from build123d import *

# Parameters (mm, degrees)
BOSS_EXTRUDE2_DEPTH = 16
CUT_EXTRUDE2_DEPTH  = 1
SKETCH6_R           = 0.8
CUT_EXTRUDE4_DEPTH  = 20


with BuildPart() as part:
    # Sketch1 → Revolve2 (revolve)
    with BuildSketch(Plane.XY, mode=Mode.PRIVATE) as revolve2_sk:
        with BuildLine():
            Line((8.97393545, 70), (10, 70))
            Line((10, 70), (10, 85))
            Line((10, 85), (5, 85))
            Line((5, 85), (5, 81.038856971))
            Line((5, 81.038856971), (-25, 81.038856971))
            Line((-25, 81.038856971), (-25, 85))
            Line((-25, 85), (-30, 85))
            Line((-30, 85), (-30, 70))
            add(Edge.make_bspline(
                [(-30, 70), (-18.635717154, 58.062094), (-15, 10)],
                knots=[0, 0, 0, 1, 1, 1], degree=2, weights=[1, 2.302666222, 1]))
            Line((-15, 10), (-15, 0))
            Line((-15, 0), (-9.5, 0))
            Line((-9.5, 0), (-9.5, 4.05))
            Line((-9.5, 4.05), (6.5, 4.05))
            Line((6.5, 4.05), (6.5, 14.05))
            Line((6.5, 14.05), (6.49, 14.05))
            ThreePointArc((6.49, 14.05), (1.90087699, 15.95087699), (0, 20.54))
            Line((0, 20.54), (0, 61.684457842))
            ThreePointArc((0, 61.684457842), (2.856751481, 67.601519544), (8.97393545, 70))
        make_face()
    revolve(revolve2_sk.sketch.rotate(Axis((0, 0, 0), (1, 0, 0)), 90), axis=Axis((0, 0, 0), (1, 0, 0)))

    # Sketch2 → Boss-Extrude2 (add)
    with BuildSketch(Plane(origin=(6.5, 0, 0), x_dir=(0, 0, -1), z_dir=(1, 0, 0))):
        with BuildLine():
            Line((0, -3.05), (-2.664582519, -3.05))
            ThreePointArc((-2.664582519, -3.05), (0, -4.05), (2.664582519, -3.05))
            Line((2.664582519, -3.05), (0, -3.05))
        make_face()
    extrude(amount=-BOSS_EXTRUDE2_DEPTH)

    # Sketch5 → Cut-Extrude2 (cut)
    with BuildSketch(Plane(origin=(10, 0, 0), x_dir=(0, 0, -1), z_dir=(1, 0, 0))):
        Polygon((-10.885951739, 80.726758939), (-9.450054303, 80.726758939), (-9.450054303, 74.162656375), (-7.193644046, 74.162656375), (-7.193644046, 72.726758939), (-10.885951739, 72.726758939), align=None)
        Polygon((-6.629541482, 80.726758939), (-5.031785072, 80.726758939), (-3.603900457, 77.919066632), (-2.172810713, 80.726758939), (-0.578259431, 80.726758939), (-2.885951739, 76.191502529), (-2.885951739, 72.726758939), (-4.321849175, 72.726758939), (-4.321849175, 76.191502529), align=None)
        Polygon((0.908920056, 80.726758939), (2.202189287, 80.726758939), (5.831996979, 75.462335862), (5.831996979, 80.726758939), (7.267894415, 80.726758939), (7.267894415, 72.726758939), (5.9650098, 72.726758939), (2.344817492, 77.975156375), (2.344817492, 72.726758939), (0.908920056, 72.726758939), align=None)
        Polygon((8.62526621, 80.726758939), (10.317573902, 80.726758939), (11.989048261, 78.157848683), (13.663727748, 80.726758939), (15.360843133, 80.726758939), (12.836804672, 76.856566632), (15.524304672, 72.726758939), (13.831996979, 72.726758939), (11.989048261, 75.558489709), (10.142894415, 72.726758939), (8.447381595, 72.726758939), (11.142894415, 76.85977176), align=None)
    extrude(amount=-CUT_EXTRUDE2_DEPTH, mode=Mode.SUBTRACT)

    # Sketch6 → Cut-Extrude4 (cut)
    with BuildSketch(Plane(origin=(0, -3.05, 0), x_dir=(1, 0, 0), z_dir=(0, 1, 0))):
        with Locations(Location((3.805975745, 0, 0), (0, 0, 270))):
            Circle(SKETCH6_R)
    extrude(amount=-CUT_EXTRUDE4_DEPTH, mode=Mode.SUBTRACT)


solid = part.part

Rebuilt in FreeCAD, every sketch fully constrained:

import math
import FreeCAD as App
import Part
import Sketcher
from FreeCAD import Vector
Q = App.Units.Quantity


def add_polygon(sketch, points):
    """Adds a closed chain of lines whose ends are joined by coincident constraints."""
    first, n = sketch.GeometryCount, len(points)
    for a, b in zip(points, points[1:] + points[:1]):
        sketch.addGeometry(Part.LineSegment(App.Vector(*a, 0), App.Vector(*b, 0)), False)
    for i in range(n):
        sketch.addConstraint(Sketcher.Constraint("Coincident", first + i, 2, first + (i + 1) % n, 1))

doc = App.newDocument("Part")
body = doc.addObject("PartDesign::Body", "Body")

# Sketch on XY plane
sketch1 = body.newObject("Sketcher::SketchObject", "Sketch")
sketch1.AttachmentSupport = (doc.getObject("XY_Plane"), [""])
sketch1.MapMode = "FlatFace"
sketch1.addGeometry(Part.LineSegment(Vector(8.973935, 70, 0), Vector(10, 70, 0)), False)
sketch1.addGeometry(Part.LineSegment(Vector(10, 70, 0), Vector(10, 85, 0)), False)
sketch1.addGeometry(Part.LineSegment(Vector(10, 85, 0), Vector(5, 85, 0)), False)
sketch1.addGeometry(Part.LineSegment(Vector(5, 85, 0), Vector(5, 81.038857, 0)), False)
sketch1.addGeometry(Part.LineSegment(Vector(5, 81.038857, 0), Vector(-25, 81.038857, 0)), False)
sketch1.addGeometry(Part.LineSegment(Vector(-25, 81.038857, 0), Vector(-25, 85, 0)), False)
sketch1.addGeometry(Part.LineSegment(Vector(-25, 85, 0), Vector(-30, 85, 0)), False)
sketch1.addGeometry(Part.LineSegment(Vector(-30, 85, 0), Vector(-30, 70, 0)), False)
sketch1.addGeometry(Part.BSplineCurve([Vector(-30, 70, 0), Vector(-18.635717, 58.062094, 0), Vector(-15, 10, 0)], [3, 3], [0, 1], False, 2, [1, 2.302666222, 1], False), False)
sketch1.addGeometry(Part.LineSegment(Vector(-15, 10, 0), Vector(-15, 0, 0)), False)
sketch1.addGeometry(Part.LineSegment(Vector(-15, 0, 0), Vector(-9.5, 0, 0)), False)
sketch1.addGeometry(Part.LineSegment(Vector(-9.5, 0, 0), Vector(-9.5, 4.05, 0)), False)
sketch1.addGeometry(Part.LineSegment(Vector(-9.5, 4.05, 0), Vector(6.5, 4.05, 0)), False)
sketch1.addGeometry(Part.LineSegment(Vector(6.5, 4.05, 0), Vector(6.5, 14.05, 0)), False)
sketch1.addGeometry(Part.LineSegment(Vector(6.5, 14.05, 0), Vector(6.49, 14.05, 0)), False)
sketch1.addGeometry(Part.ArcOfCircle(Part.Circle(Vector(6.49, 20.54, 0), Vector(0, 0, 1), 6.49), math.radians(180), math.radians(270)), False)
sketch1.addGeometry(Part.LineSegment(Vector(0, 20.54, 0), Vector(0, 61.684458, 0)), False)
sketch1.addGeometry(Part.ArcOfCircle(Part.Circle(Vector(8.973935, 61, 0), Vector(0, 0, 1), 9), math.radians(90), math.radians(175.638395)), False)
sketch1.addConstraint(Sketcher.Constraint("Block", 8))
sketch1.addConstraint(Sketcher.Constraint("Coincident", 0, 2, 1, 1))
sketch1.addConstraint(Sketcher.Constraint("Coincident", 1, 2, 2, 1))
sketch1.addConstraint(Sketcher.Constraint("Coincident", 2, 2, 3, 1))
sketch1.addConstraint(Sketcher.Constraint("Coincident", 3, 2, 4, 1))
sketch1.addConstraint(Sketcher.Constraint("Coincident", 4, 2, 5, 1))
sketch1.addConstraint(Sketcher.Constraint("Coincident", 5, 2, 6, 1))
sketch1.addConstraint(Sketcher.Constraint("Coincident", 6, 2, 7, 1))
sketch1.addConstraint(Sketcher.Constraint("Coincident", 7, 2, 8, 1))
sketch1.addConstraint(Sketcher.Constraint("Coincident", 8, 2, 9, 1))
sketch1.addConstraint(Sketcher.Constraint("Coincident", 9, 2, 10, 1))
sketch1.addConstraint(Sketcher.Constraint("Coincident", 10, 2, 11, 1))
sketch1.addConstraint(Sketcher.Constraint("Coincident", 11, 2, 12, 1))
sketch1.addConstraint(Sketcher.Constraint("Coincident", 12, 2, 13, 1))
sketch1.addConstraint(Sketcher.Constraint("Coincident", 13, 2, 14, 1))
sketch1.addConstraint(Sketcher.Constraint("Tangent", 14, 2, 15, 2))
sketch1.addConstraint(Sketcher.Constraint("Tangent", 15, 1, 16, 1))
sketch1.addConstraint(Sketcher.Constraint("Coincident", 16, 2, 17, 2))
sketch1.addConstraint(Sketcher.Constraint("Tangent", 17, 1, 0, 1))
sketch1.addConstraint(Sketcher.Constraint("Horizontal", 0))
sketch1.addConstraint(Sketcher.Constraint("Vertical", 1))
sketch1.addConstraint(Sketcher.Constraint("Horizontal", 2))
sketch1.addConstraint(Sketcher.Constraint("Vertical", 3))
sketch1.addConstraint(Sketcher.Constraint("Horizontal", 4))
sketch1.addConstraint(Sketcher.Constraint("Vertical", 5))
sketch1.addConstraint(Sketcher.Constraint("Horizontal", 6))
sketch1.addConstraint(Sketcher.Constraint("Vertical", 7))
sketch1.addConstraint(Sketcher.Constraint("Vertical", 9))
sketch1.addConstraint(Sketcher.Constraint("Horizontal", 10))
sketch1.addConstraint(Sketcher.Constraint("Vertical", 11))
sketch1.addConstraint(Sketcher.Constraint("Horizontal", 12))
sketch1.addConstraint(Sketcher.Constraint("Vertical", 13))
sketch1.addConstraint(Sketcher.Constraint("Vertical", 16))
sketch1.addConstraint(Sketcher.Constraint("PointOnObject", 9, 2, -1))
sketch1.addConstraint(Sketcher.Constraint("PointOnObject", 15, 1, -2))
sketch1.addConstraint(Sketcher.Constraint("Horizontal", 2, 2, 5, 2))
sketch1.addConstraint(Sketcher.Constraint("Horizontal", 0, 2, 7, 2))
sketch1.addConstraint(Sketcher.Constraint("Vertical", 15, 3, 14, 2))
sketch1.addConstraint(Sketcher.Constraint("Equal", 2, 6))
sketch1.addConstraint(Sketcher.Constraint("Equal", 9, 13))
sketch1.addConstraint(Sketcher.Constraint("Radius", 17, Q("9 mm")))
sketch1.addConstraint(Sketcher.Constraint("DistanceX", 2, 2, 2, 1, Q("5 mm")))
sketch1.addConstraint(Sketcher.Constraint("DistanceX", 4, 2, 4, 1, Q("30 mm")))
sketch1.addConstraint(Sketcher.Constraint("DistanceX", 12, 1, 12, 2, Q("16 mm")))
sketch1.addConstraint(Sketcher.Constraint("DistanceY", 1, 1, 1, 2, Q("15 mm")))
sketch1.addConstraint(Sketcher.Constraint("Radius", 15, Q("6.49 mm")))
sketch1.addConstraint(Sketcher.Constraint("DistanceX", 10, 1, 10, 2, Q("5.5 mm")))
sketch1.addConstraint(Sketcher.Constraint("DistanceY", 11, 1, 11, 2, Q("4.05 mm")))
sketch1.addConstraint(Sketcher.Constraint("DistanceY", 16, 2, 3, 2, Q("19.354399 mm")))
sketch1.addConstraint(Sketcher.Constraint("DistanceX", 0, 1, 0, 2, Q("1.026065 mm")))
revolution = body.newObject("PartDesign::Revolution", "Revolution")
revolution.Profile = sketch1
revolution.ReferenceAxis = (sketch1, ["H_Axis"])
revolution.Angle = 360

# Sketch on YZ plane
sketch2 = body.newObject("Sketcher::SketchObject", "Sketch001")
sketch2.AttachmentSupport = (doc.getObject("YZ_Plane"), [""])
sketch2.MapMode = "FlatFace"
sketch2.AttachmentOffset = App.Placement(Vector(0, 0, 6.5), App.Rotation())
sketch2.addGeometry(Part.ArcOfCircle(Part.Circle(Vector(0, 0, 0), Vector(0, 0, 1), 4), math.radians(139), math.radians(221)), False)
sketch2.addGeometry(Part.LineSegment(Vector(-3, -2.7, 0), Vector(-3, 2.7, 0)), False)
sketch2.addConstraint(Sketcher.Constraint("Coincident", 0, 1, 1, 2))
sketch2.addConstraint(Sketcher.Constraint("Coincident", 1, 1, 0, 2))
sketch2.addConstraint(Sketcher.Constraint("Vertical", 1))
sketch2.addConstraint(Sketcher.Constraint("Coincident", 0, 3, -1, 1))
sketch2.addConstraint(Sketcher.Constraint("Radius", 0, Q("4.05 mm")))
sketch2.addConstraint(Sketcher.Constraint("DistanceX", 0, 1, -1, 1, Q("3.05 mm")))
pad1 = body.newObject("PartDesign::Pad", "Pad")
pad1.Profile = sketch2
pad1.Length = 16
pad1.Reversed = True

# Sketch on YZ plane
sketch3 = body.newObject("Sketcher::SketchObject", "Sketch002")
sketch3.AttachmentSupport = (doc.getObject("YZ_Plane"), [""])
sketch3.MapMode = "FlatFace"
sketch3.AttachmentOffset = App.Placement(Vector(0, 0, 10), App.Rotation())
add_polygon(sketch3, [(80.7, 9.5), (80.7, 10.9), (72.7, 10.9), (72.7, 7.2), (74.2, 7.2), (74.2, 9.5)])  # lines 0-5
add_polygon(sketch3, [(80.7, 5), (80.7, 6.6), (76.2, 4.3), (72.7, 4.3), (72.7, 2.9), (76.2, 2.9), (80.7, 0.6), (80.7, 2.2), (77.9, 3.6)])  # lines 6-14
add_polygon(sketch3, [(80.7, -2.2), (80.7, -0.9), (72.7, -0.9), (72.7, -2.3), (78, -2.3), (72.7, -6), (72.7, -7.3), (80.7, -7.3), (80.7, -5.8), (75.5, -5.8)])  # lines 15-24
add_polygon(sketch3, [(80.7, -10.3), (80.7, -8.6), (76.9, -11.1), (72.7, -8.4), (72.7, -10.1), (75.6, -12), (72.7, -13.8), (72.7, -15.5), (76.9, -12.8), (80.7, -15.4), (80.7, -13.7), (78.2, -12)])  # lines 25-36
sketch3.addConstraint(Sketcher.Constraint("Vertical", 0))
sketch3.addConstraint(Sketcher.Constraint("Horizontal", 1))
sketch3.addConstraint(Sketcher.Constraint("Vertical", 2))
sketch3.addConstraint(Sketcher.Constraint("Horizontal", 3))
sketch3.addConstraint(Sketcher.Constraint("Vertical", 4))
sketch3.addConstraint(Sketcher.Constraint("Horizontal", 5))
sketch3.addConstraint(Sketcher.Constraint("Vertical", 6))
sketch3.addConstraint(Sketcher.Constraint("Horizontal", 8))
sketch3.addConstraint(Sketcher.Constraint("Vertical", 9))
sketch3.addConstraint(Sketcher.Constraint("Horizontal", 10))
sketch3.addConstraint(Sketcher.Constraint("Vertical", 12))
sketch3.addConstraint(Sketcher.Constraint("Vertical", 15))
sketch3.addConstraint(Sketcher.Constraint("Horizontal", 16))
sketch3.addConstraint(Sketcher.Constraint("Vertical", 17))
sketch3.addConstraint(Sketcher.Constraint("Horizontal", 18))
sketch3.addConstraint(Sketcher.Constraint("Vertical", 20))
sketch3.addConstraint(Sketcher.Constraint("Horizontal", 21))
sketch3.addConstraint(Sketcher.Constraint("Vertical", 22))
sketch3.addConstraint(Sketcher.Constraint("Horizontal", 23))
sketch3.addConstraint(Sketcher.Constraint("Vertical", 25))
sketch3.addConstraint(Sketcher.Constraint("Vertical", 28))
sketch3.addConstraint(Sketcher.Constraint("Vertical", 31))
sketch3.addConstraint(Sketcher.Constraint("Vertical", 34))
sketch3.addConstraint(Sketcher.Constraint("Horizontal", 29, 2, 35, 2))
sketch3.addConstraint(Sketcher.Constraint("Vertical", 5, 2, 6, 2))
sketch3.addConstraint(Sketcher.Constraint("Vertical", 2, 2, 8, 2))
sketch3.addConstraint(Sketcher.Constraint("Vertical", 7, 2, 10, 2))
sketch3.addConstraint(Sketcher.Constraint("Vertical", 6, 2, 11, 2))
sketch3.addConstraint(Sketcher.Constraint("Vertical", 14, 2, 15, 2))
sketch3.addConstraint(Sketcher.Constraint("Vertical", 9, 2, 16, 2))
sketch3.addConstraint(Sketcher.Constraint("Vertical", 17, 2, 19, 2))
sketch3.addConstraint(Sketcher.Constraint("Vertical", 15, 2, 21, 2))
sketch3.addConstraint(Sketcher.Constraint("Vertical", 24, 2, 25, 2))
sketch3.addConstraint(Sketcher.Constraint("Vertical", 20, 2, 27, 2))
sketch3.addConstraint(Sketcher.Constraint("Vertical", 28, 2, 30, 2))
sketch3.addConstraint(Sketcher.Constraint("Vertical", 25, 2, 33, 2))
sketch3.addConstraint(Sketcher.Constraint("Equal", 3, 0))
sketch3.addConstraint(Sketcher.Constraint("Equal", 0, 9))
sketch3.addConstraint(Sketcher.Constraint("Equal", 9, 17))
sketch3.addConstraint(Sketcher.Constraint("Equal", 17, 22))
sketch3.addConstraint(Sketcher.Constraint("Equal", 25, 31))
sketch3.addConstraint(Sketcher.Constraint("Equal", 7, 11))
sketch3.addConstraint(Sketcher.Constraint("DistanceX", 1, 2, 1, 1, Q("8 mm")))
sketch3.addConstraint(Sketcher.Constraint("DistanceY", 26, 2, 28, 2, Q("1 mm")))
sketch3.addConstraint(Sketcher.Constraint("DistanceY", 24, 2, 12, 2, Q("4.375 mm")))
sketch3.addConstraint(Sketcher.Constraint("DistanceY", 26, 2, 21, 2, Q("3.875 mm")))
sketch3.addConstraint(Sketcher.Constraint("Distance", 24, Q("6.394502 mm")))
sketch3.addConstraint(Sketcher.Constraint("DistanceY", 4, 1, 4, 2, Q("2.25641 mm")))
sketch3.addConstraint(Sketcher.Constraint("DistanceY", 12, 1, 12, 2, Q("1.594551 mm")))
sketch3.addConstraint(Sketcher.Constraint("DistanceY", 15, 1, 15, 2, Q("1.293269 mm")))
sketch3.addConstraint(Sketcher.Constraint("DistanceY", -1, 1, 13, 2, Q("3.6039 mm")))
sketch3.addConstraint(Sketcher.Constraint("DistanceY", 31, 2, 32, 2, Q("2.6875 mm")))
sketch3.addConstraint(Sketcher.Constraint("Distance", 14, Q("3.149919 mm")))
sketch3.addConstraint(Sketcher.Constraint("Distance", 19, Q("6.37585 mm")))
sketch3.addConstraint(Sketcher.Constraint("Distance", 26, Q("4.61433 mm")))
sketch3.addConstraint(Sketcher.Constraint("Distance", 35, Q("3.06657 mm")))
sketch3.addConstraint(Sketcher.Constraint("Distance", 36, Q("3.064821 mm")))
sketch3.addConstraint(Sketcher.Constraint("DistanceX", 3, 1, 3, 2, Q("1.435897 mm")))
sketch3.addConstraint(Sketcher.Constraint("DistanceX", 8, 2, 8, 1, Q("3.464744 mm")))
sketch3.addConstraint(Sketcher.Constraint("DistanceX", 18, 1, 18, 2, Q("5.248397 mm")))
sketch3.addConstraint(Sketcher.Constraint("DistanceX", 23, 2, 23, 1, Q("5.264423 mm")))
sketch3.addConstraint(Sketcher.Constraint("DistanceY", 6, 1, 6, 2, Q("1.597756 mm")))
sketch3.addConstraint(Sketcher.Constraint("DistanceY", 25, 1, 25, 2, Q("1.692308 mm")))
sketch3.addConstraint(Sketcher.Constraint("DistanceY", 28, 2, 28, 1, Q("1.695513 mm")))
sketch3.addConstraint(Sketcher.Constraint("DistanceY", 34, 1, 34, 2, Q("1.697115 mm")))
sketch3.addConstraint(Sketcher.Constraint("DistanceX", -1, 1, 0, 2, Q("80.726759 mm")))
sketch3.addConstraint(Sketcher.Constraint("DistanceY", -1, 1, 0, 2, Q("10.885952 mm")))
sketch3.addConstraint(Sketcher.Constraint("DistanceY", -1, 1, 6, 2, Q("6.629541 mm")))
sketch3.addConstraint(Sketcher.Constraint("DistanceY", -1, 1, 7, 2, Q("4.321849 mm")))
sketch3.addConstraint(Sketcher.Constraint("DistanceX", -1, 1, 26, 2, Q("76.859772 mm")))
sketch3.addConstraint(Sketcher.Constraint("DistanceX", -1, 1, 29, 2, Q("75.55849 mm")))
sketch3.addConstraint(Sketcher.Constraint("DistanceY", 29, 2, -1, 1, Q("11.989048 mm")))
sketch3.addConstraint(Sketcher.Constraint("DistanceY", 30, 2, 29, 2, Q("1.842949 mm")))
sketch3.addConstraint(Sketcher.Constraint("Distance", 32, Q("4.927268 mm")))
pocket1 = body.newObject("PartDesign::Pocket", "Pocket")
pocket1.Profile = sketch3
pocket1.Length = 1

# Sketch on XZ plane
sketch4 = body.newObject("Sketcher::SketchObject", "Sketch003")
sketch4.AttachmentSupport = (doc.getObject("XZ_Plane"), [""])
sketch4.MapMode = "FlatFace"
sketch4.AttachmentOffset = App.Placement(Vector(0, 0, 3.05), App.Rotation())
sketch4.addGeometry(Part.Circle(Vector(3.8, 0, 0), Vector(0, 0, 1), 0.8), False)
sketch4.addConstraint(Sketcher.Constraint("PointOnObject", 0, 3, -1))
sketch4.addConstraint(Sketcher.Constraint("Diameter", 0, Q("1.6 mm")))
sketch4.addConstraint(Sketcher.Constraint("DistanceX", -1, 1, 0, 3, Q("3.805976 mm")))
pocket2 = body.newObject("PartDesign::Pocket", "Pocket001")
pocket2.Profile = sketch4
pocket2.Length = 20
pocket2.Reversed = True

doc.recompute()
